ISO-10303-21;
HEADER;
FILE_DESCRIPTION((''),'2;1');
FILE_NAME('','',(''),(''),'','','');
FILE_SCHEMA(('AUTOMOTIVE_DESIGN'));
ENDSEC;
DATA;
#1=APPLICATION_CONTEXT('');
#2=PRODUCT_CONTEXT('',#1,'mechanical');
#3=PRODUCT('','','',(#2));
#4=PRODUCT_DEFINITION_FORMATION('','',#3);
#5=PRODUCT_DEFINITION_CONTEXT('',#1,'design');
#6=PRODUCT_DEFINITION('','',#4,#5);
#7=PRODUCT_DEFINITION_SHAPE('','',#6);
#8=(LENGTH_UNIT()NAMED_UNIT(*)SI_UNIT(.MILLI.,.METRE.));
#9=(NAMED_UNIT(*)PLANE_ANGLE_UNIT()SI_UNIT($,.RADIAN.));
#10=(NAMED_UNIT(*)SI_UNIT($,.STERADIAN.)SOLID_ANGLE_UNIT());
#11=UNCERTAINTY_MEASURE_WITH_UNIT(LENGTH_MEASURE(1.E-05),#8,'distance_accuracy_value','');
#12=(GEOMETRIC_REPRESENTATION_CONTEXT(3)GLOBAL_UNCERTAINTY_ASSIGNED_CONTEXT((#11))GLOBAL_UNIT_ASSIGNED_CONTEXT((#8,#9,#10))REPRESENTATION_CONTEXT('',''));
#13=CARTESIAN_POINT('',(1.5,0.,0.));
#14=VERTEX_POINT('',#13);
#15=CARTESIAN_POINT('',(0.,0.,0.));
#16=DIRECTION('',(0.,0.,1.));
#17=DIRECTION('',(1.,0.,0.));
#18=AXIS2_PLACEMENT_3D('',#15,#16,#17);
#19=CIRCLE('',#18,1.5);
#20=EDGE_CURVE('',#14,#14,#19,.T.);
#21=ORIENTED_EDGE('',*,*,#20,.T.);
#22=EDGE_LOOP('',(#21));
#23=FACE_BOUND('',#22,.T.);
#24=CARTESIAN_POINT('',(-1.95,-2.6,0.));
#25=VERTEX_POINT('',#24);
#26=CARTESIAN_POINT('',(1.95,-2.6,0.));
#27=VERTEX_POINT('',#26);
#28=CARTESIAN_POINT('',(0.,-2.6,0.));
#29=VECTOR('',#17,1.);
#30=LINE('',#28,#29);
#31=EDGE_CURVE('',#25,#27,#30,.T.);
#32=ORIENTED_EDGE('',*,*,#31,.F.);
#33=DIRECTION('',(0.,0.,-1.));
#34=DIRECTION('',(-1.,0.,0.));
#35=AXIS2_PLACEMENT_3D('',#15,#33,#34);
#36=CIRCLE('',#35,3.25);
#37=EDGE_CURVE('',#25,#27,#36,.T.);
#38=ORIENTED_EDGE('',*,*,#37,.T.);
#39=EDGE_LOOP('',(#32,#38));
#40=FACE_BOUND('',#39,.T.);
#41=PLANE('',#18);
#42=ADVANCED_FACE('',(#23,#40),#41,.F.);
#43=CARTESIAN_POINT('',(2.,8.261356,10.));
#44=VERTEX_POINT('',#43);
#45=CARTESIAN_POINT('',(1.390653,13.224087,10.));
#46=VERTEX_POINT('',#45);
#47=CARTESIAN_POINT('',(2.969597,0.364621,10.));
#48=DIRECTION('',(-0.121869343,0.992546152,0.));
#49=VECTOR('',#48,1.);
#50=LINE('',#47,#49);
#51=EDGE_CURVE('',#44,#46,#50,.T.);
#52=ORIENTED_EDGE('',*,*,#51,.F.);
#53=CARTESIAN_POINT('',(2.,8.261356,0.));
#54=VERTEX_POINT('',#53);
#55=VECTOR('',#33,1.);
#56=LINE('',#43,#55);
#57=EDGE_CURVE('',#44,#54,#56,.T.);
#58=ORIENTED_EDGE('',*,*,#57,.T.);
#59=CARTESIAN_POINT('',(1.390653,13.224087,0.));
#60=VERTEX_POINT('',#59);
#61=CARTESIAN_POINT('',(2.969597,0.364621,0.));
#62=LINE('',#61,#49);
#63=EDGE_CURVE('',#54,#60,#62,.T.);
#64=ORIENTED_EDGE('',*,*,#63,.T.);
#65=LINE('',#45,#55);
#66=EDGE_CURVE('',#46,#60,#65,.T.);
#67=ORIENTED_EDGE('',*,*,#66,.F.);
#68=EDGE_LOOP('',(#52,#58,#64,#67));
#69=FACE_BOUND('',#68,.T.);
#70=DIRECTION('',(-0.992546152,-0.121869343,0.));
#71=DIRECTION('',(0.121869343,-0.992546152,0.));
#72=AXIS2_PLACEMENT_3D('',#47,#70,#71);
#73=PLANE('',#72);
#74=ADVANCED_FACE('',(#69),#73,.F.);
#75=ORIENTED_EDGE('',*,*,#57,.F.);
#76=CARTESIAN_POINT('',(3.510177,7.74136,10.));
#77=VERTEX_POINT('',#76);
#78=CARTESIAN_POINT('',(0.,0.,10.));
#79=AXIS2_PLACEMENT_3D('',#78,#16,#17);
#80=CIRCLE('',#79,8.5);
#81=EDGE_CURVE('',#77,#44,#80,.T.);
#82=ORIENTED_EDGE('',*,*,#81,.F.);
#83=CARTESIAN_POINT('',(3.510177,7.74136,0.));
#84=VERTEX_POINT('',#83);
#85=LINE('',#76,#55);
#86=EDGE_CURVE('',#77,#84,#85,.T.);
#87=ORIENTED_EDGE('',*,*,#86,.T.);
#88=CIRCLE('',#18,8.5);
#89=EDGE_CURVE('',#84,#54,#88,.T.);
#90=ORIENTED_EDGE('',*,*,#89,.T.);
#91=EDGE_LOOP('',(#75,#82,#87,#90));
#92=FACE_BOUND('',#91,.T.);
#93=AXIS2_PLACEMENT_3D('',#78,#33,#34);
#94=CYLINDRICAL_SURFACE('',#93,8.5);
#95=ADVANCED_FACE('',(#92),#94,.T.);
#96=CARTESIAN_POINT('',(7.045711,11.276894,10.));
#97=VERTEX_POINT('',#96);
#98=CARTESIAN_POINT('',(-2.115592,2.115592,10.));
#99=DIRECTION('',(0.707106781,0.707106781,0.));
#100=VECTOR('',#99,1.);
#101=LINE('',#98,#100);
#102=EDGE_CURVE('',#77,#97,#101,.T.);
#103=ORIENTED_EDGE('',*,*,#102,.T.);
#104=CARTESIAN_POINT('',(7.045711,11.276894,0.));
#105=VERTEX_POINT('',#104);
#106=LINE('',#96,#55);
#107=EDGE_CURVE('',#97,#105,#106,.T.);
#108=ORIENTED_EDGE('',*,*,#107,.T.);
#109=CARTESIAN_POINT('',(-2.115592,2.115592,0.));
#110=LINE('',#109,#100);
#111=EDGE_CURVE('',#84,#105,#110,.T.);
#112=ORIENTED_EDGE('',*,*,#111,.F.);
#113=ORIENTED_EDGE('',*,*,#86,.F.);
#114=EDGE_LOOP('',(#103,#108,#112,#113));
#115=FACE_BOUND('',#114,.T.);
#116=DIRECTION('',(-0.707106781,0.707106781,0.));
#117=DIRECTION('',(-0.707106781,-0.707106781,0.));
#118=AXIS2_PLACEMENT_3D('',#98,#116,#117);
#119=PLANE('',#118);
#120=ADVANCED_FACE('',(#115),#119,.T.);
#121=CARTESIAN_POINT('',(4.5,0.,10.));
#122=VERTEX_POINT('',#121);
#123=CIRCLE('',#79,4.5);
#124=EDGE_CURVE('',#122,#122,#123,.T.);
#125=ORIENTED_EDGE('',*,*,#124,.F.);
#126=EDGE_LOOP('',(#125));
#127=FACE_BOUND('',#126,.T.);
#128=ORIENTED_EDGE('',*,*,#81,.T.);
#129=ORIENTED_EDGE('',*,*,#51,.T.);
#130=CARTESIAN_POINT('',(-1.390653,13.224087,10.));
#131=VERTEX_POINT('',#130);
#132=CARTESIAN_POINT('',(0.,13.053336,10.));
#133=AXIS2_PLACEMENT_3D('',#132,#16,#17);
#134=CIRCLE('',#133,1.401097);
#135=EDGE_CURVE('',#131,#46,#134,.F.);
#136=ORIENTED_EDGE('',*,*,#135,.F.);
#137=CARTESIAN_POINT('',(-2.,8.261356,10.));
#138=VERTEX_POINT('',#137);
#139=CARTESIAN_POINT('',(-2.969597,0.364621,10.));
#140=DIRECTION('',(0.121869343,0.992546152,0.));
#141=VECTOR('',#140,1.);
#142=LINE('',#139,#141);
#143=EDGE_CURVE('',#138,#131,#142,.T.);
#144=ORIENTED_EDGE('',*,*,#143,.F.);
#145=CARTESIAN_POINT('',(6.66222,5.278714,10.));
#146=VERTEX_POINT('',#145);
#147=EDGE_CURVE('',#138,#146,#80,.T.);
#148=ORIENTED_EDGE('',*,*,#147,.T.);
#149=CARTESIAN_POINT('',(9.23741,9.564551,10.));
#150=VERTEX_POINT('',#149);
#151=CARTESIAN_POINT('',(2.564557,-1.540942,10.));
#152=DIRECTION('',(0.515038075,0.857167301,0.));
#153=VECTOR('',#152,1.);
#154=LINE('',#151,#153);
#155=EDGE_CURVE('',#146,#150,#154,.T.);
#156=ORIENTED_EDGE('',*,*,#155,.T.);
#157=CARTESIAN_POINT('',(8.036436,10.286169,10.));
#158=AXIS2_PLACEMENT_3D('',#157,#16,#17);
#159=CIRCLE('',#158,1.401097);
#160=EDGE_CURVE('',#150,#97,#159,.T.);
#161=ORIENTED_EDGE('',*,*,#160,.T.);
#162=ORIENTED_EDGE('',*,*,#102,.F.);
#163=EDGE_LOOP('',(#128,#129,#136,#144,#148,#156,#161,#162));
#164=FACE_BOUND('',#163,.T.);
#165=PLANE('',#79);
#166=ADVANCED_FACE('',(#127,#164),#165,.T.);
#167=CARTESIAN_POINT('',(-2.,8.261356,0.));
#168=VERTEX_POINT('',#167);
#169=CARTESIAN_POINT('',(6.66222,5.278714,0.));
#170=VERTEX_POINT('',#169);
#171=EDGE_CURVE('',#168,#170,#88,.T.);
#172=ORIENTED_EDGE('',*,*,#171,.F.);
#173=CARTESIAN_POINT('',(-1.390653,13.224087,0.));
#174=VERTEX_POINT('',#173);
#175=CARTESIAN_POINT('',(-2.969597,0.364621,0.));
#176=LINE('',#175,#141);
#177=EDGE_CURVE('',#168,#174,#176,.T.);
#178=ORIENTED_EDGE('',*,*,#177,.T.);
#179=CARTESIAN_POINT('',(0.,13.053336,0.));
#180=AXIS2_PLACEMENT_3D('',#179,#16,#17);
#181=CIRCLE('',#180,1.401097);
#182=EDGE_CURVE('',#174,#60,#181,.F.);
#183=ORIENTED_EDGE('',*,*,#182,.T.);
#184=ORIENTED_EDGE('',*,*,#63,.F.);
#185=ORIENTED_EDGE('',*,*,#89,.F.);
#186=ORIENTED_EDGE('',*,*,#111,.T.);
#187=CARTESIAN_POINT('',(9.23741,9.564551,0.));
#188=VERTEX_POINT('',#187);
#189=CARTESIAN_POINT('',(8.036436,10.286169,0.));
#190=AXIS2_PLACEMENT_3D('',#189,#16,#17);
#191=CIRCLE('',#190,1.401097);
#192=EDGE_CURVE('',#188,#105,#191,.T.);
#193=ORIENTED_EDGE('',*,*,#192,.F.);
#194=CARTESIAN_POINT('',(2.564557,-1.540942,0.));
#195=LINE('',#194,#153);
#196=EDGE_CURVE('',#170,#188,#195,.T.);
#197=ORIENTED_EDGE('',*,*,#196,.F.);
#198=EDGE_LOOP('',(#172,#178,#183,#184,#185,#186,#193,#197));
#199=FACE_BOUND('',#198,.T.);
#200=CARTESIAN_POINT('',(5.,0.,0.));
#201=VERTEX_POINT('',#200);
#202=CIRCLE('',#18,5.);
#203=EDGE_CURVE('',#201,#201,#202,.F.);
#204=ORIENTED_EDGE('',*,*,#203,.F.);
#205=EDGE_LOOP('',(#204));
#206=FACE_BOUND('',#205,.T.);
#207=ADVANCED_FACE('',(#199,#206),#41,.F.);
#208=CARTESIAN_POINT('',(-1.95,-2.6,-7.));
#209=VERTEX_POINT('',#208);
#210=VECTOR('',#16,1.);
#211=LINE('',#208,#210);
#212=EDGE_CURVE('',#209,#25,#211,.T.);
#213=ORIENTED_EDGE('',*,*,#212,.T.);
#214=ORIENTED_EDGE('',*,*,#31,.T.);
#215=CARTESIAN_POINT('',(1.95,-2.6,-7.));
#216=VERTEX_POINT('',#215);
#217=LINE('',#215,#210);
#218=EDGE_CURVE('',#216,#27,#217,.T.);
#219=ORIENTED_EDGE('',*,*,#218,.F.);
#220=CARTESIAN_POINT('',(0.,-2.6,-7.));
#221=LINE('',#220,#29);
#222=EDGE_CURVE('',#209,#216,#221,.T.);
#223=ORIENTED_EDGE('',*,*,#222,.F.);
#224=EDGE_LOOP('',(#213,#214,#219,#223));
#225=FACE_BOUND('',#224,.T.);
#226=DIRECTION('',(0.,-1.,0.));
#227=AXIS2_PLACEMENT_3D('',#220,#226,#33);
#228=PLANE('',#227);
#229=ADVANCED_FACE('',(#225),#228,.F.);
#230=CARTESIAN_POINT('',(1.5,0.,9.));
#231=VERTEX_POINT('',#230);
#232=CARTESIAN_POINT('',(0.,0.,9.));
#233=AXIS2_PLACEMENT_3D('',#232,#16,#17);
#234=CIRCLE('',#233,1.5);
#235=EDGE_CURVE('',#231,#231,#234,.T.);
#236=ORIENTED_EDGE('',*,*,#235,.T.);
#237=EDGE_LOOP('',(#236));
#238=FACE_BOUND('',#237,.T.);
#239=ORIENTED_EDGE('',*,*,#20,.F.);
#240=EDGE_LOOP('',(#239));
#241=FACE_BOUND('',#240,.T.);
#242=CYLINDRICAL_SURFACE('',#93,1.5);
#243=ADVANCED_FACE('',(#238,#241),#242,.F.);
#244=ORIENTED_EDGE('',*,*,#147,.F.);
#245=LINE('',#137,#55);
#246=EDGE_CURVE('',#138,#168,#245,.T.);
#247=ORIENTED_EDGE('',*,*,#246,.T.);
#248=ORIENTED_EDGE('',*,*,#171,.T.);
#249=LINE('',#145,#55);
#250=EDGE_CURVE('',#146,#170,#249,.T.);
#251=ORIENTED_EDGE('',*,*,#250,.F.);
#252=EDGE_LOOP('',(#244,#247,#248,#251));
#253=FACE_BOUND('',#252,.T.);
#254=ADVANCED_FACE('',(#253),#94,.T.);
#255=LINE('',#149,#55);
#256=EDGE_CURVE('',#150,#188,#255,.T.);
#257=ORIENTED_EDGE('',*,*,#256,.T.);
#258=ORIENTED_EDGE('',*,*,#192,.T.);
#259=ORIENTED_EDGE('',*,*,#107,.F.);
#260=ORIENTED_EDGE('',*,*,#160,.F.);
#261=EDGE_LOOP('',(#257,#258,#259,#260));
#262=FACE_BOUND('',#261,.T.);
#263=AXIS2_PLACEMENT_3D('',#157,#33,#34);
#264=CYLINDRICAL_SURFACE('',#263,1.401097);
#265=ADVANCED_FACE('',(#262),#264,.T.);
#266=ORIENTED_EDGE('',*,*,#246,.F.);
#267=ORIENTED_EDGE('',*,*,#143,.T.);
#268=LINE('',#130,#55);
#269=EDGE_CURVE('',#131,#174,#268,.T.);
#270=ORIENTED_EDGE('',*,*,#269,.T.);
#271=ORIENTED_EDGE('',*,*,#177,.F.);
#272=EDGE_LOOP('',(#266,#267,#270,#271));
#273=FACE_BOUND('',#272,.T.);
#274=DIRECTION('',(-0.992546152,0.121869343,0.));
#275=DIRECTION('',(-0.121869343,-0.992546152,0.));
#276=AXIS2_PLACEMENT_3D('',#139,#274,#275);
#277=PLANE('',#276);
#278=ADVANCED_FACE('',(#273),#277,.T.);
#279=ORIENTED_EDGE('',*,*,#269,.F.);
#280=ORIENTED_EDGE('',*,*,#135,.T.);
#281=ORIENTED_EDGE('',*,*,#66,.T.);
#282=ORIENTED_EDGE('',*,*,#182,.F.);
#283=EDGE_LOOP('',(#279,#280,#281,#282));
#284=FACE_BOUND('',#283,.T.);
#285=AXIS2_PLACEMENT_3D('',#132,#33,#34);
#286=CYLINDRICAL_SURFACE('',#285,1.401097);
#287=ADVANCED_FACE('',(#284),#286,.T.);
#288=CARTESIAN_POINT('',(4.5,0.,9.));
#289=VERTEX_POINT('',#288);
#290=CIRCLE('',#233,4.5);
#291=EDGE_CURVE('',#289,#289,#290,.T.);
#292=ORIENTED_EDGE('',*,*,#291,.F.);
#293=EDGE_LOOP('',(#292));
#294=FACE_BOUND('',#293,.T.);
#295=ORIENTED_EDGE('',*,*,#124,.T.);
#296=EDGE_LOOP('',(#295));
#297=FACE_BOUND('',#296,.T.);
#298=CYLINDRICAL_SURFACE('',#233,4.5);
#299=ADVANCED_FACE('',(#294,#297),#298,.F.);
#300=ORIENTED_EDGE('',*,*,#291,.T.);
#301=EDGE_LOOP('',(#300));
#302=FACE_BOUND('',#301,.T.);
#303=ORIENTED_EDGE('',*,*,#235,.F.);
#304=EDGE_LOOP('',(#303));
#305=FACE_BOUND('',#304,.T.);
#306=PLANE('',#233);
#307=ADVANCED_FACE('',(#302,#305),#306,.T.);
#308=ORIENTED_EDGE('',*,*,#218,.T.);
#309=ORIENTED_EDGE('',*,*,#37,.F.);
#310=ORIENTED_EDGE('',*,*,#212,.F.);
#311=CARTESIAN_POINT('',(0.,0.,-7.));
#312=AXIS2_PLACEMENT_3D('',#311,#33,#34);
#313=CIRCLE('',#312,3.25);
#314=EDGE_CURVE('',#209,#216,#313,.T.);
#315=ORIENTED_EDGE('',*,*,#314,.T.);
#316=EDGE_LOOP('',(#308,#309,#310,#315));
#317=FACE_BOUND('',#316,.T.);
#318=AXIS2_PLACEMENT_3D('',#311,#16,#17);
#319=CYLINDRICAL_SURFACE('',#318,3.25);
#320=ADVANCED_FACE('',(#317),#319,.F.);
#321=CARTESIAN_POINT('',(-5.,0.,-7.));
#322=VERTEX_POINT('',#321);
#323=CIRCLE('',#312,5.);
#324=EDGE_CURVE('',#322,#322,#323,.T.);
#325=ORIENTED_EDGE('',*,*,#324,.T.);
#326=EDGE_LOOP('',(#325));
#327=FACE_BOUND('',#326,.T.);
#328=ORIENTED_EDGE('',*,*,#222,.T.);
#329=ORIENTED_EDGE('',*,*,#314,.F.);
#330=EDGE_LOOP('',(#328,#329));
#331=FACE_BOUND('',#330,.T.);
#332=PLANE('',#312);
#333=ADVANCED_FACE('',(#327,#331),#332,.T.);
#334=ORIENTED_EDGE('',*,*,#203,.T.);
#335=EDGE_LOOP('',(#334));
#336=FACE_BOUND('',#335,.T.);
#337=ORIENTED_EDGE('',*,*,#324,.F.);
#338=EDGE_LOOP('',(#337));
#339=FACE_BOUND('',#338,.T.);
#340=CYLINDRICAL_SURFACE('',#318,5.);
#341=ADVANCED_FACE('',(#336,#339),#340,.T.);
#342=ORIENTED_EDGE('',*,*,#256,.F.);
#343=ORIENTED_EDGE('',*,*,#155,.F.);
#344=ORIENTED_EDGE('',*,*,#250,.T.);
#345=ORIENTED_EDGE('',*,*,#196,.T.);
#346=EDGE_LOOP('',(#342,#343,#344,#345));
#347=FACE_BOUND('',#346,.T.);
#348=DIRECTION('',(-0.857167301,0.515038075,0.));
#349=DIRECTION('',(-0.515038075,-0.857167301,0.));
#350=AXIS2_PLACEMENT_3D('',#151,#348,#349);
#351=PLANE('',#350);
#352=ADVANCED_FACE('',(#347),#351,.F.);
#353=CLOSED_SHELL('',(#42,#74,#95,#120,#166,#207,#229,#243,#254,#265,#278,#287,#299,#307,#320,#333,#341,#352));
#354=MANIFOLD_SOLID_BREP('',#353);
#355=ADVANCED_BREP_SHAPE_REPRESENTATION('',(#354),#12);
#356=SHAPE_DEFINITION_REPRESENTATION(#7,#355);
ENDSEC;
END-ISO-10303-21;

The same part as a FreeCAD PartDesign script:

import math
import FreeCAD as App
import Part
import Sketcher
Q = App.Units.Quantity

doc = App.newDocument("Part")
body = doc.addObject("PartDesign::Body", "Body")

# Sketch on XY plane
sketch1 = doc.addObject("Sketcher::SketchObject", "Sketch")
body.addObject(sketch1)
sketch1.AttachmentSupport = (doc.XY_Plane, [""])
sketch1.MapMode = "FlatFace"
sketch1.addGeometry(Part.LineSegment(App.Vector(-1.4, 13.2, 0), App.Vector(-2, 8.3, 0)), False)
sketch1.addGeometry(Part.ArcOfCircle(Part.Circle(App.Vector(0, 0, 0), App.Vector(0, 0, 1), 8.5), math.radians(104), math.radians(398)), False)
sketch1.addGeometry(Part.LineSegment(App.Vector(6.7, 5.3, 0), App.Vector(9.2, 9.6, 0)), False)
sketch1.addGeometry(Part.ArcOfCircle(Part.Circle(App.Vector(8, 10.3, 0), App.Vector(0, 0, 1), 1.4), math.radians(-31), math.radians(135)), False)
sketch1.addGeometry(Part.LineSegment(App.Vector(7, 11.3, 0), App.Vector(3.5, 7.7, 0)), False)
sketch1.addGeometry(Part.ArcOfCircle(Part.Circle(App.Vector(0, 0, 0), App.Vector(0, 0, 1), 8.5), math.radians(65.61), math.radians(76.39)), False)
sketch1.addGeometry(Part.LineSegment(App.Vector(2, 8.3, 0), App.Vector(1.4, 13.2, 0)), False)
sketch1.addGeometry(Part.ArcOfCircle(Part.Circle(App.Vector(0, 13.1, 0), App.Vector(0, 0, 1), 1.4), math.radians(7), math.radians(173)), False)
sketch1.addGeometry(Part.Circle(App.Vector(0, 0, 0), App.Vector(0, 0, 1), 1.5), False)
sketch1.addConstraint(Sketcher.Constraint("Coincident", 0, 2, 1, 1))
sketch1.addConstraint(Sketcher.Constraint("Coincident", 1, 2, 2, 1))
sketch1.addConstraint(Sketcher.Constraint("Tangent", 2, 2, 3, 1))
sketch1.addConstraint(Sketcher.Constraint("Tangent", 3, 2, 4, 1))
sketch1.addConstraint(Sketcher.Constraint("Coincident", 4, 2, 5, 1))
sketch1.addConstraint(Sketcher.Constraint("Coincident", 5, 2, 6, 1))
sketch1.addConstraint(Sketcher.Constraint("Tangent", 6, 2, 7, 1))
sketch1.addConstraint(Sketcher.Constraint("Tangent", 7, 2, 0, 1))
sketch1.addConstraint(Sketcher.Constraint("Coincident", 1, 3, -1, 1))
sketch1.addConstraint(Sketcher.Constraint("Coincident", 5, 3, -1, 1))
sketch1.addConstraint(Sketcher.Constraint("Coincident", 8, 3, -1, 1))
sketch1.addConstraint(Sketcher.Constraint("Equal", 1, 5))
sketch1.addConstraint(Sketcher.Constraint("Equal", 3, 7))
sketch1.addConstraint(Sketcher.Constraint("Symmetric", 6, 2, 7, 2, -2))
sketch1.addConstraint(Sketcher.Constraint("Equal", 0, 2))
sketch1.addConstraint(Sketcher.Constraint("Equal", 2, 4))
sketch1.addConstraint(Sketcher.Constraint("Diameter", 8, 3.0))
sketch1.addConstraint(Sketcher.Constraint("Radius", 1, 8.5))
sketch1.addConstraint(Sketcher.Constraint("Angle", 0, Q("-97 deg")))
sketch1.addConstraint(Sketcher.Constraint("Angle", 2, Q("59 deg")))
sketch1.addConstraint(Sketcher.Constraint("Angle", 4, Q("-135 deg")))
sketch1.addConstraint(Sketcher.Constraint("Distance", 0, 5.0))
sketch1.addConstraint(Sketcher.Constraint("DistanceX", 0, 2, -1, 1, 2.0))
pad1 = doc.addObject("PartDesign::Pad", "Pad")
body.addObject(pad1)
pad1.Profile = sketch1
pad1.Length = 10

# Sketch on XY plane
sketch2 = doc.addObject("Sketcher::SketchObject", "Sketch001")
body.addObject(sketch2)
sketch2.AttachmentSupport = (doc.XY_Plane, [""])
sketch2.MapMode = "FlatFace"
sketch2.addGeometry(Part.Circle(App.Vector(0, 0, 0), App.Vector(0, 0, 1), 5), False)
sketch2.addGeometry(Part.ArcOfCircle(Part.Circle(App.Vector(0, 0, 0), App.Vector(0, 0, 1), 3.2), math.radians(-53), math.radians(233)), False)
sketch2.addGeometry(Part.LineSegment(App.Vector(-1.9, -2.6, 0), App.Vector(1.9, -2.6, 0)), False)
sketch2.addConstraint(Sketcher.Constraint("Coincident", 1, 1, 2, 2))
sketch2.addConstraint(Sketcher.Constraint("Coincident", 2, 1, 1, 2))
sketch2.addConstraint(Sketcher.Constraint("Horizontal", 2))
sketch2.addConstraint(Sketcher.Constraint("Coincident", 0, 3, -1, 1))
sketch2.addConstraint(Sketcher.Constraint("Coincident", 1, 3, -1, 1))
sketch2.addConstraint(Sketcher.Constraint("Diameter", 0, 10.0))
sketch2.addConstraint(Sketcher.Constraint("Radius", 1, 3.25))
sketch2.addConstraint(Sketcher.Constraint("DistanceX", 2, 1, 2, 2, 3.9))
pad2 = doc.addObject("PartDesign::Pad", "Pad001")
body.addObject(pad2)
pad2.Profile = sketch2
pad2.Length = 7
pad2.Reversed = True

# Sketch on XY plane
sketch3 = doc.addObject("Sketcher::SketchObject", "Sketch002")
body.addObject(sketch3)
sketch3.AttachmentSupport = (doc.XY_Plane, [""])
sketch3.MapMode = "FlatFace"
sketch3.AttachmentOffset = App.Placement(App.Vector(0, 0, 10), App.Rotation())
sketch3.addGeometry(Part.Circle(App.Vector(0, 0, 0), App.Vector(0, 0, 1), 4.5), False)
sketch3.addConstraint(Sketcher.Constraint("Coincident", 0, 3, -1, 1))
sketch3.addConstraint(Sketcher.Constraint("Diameter", 0, 9.0))
pocket1 = doc.addObject("PartDesign::Pocket", "Pocket")
body.addObject(pocket1)
pocket1.Profile = sketch3
pocket1.Length = 1

doc.recompute()
